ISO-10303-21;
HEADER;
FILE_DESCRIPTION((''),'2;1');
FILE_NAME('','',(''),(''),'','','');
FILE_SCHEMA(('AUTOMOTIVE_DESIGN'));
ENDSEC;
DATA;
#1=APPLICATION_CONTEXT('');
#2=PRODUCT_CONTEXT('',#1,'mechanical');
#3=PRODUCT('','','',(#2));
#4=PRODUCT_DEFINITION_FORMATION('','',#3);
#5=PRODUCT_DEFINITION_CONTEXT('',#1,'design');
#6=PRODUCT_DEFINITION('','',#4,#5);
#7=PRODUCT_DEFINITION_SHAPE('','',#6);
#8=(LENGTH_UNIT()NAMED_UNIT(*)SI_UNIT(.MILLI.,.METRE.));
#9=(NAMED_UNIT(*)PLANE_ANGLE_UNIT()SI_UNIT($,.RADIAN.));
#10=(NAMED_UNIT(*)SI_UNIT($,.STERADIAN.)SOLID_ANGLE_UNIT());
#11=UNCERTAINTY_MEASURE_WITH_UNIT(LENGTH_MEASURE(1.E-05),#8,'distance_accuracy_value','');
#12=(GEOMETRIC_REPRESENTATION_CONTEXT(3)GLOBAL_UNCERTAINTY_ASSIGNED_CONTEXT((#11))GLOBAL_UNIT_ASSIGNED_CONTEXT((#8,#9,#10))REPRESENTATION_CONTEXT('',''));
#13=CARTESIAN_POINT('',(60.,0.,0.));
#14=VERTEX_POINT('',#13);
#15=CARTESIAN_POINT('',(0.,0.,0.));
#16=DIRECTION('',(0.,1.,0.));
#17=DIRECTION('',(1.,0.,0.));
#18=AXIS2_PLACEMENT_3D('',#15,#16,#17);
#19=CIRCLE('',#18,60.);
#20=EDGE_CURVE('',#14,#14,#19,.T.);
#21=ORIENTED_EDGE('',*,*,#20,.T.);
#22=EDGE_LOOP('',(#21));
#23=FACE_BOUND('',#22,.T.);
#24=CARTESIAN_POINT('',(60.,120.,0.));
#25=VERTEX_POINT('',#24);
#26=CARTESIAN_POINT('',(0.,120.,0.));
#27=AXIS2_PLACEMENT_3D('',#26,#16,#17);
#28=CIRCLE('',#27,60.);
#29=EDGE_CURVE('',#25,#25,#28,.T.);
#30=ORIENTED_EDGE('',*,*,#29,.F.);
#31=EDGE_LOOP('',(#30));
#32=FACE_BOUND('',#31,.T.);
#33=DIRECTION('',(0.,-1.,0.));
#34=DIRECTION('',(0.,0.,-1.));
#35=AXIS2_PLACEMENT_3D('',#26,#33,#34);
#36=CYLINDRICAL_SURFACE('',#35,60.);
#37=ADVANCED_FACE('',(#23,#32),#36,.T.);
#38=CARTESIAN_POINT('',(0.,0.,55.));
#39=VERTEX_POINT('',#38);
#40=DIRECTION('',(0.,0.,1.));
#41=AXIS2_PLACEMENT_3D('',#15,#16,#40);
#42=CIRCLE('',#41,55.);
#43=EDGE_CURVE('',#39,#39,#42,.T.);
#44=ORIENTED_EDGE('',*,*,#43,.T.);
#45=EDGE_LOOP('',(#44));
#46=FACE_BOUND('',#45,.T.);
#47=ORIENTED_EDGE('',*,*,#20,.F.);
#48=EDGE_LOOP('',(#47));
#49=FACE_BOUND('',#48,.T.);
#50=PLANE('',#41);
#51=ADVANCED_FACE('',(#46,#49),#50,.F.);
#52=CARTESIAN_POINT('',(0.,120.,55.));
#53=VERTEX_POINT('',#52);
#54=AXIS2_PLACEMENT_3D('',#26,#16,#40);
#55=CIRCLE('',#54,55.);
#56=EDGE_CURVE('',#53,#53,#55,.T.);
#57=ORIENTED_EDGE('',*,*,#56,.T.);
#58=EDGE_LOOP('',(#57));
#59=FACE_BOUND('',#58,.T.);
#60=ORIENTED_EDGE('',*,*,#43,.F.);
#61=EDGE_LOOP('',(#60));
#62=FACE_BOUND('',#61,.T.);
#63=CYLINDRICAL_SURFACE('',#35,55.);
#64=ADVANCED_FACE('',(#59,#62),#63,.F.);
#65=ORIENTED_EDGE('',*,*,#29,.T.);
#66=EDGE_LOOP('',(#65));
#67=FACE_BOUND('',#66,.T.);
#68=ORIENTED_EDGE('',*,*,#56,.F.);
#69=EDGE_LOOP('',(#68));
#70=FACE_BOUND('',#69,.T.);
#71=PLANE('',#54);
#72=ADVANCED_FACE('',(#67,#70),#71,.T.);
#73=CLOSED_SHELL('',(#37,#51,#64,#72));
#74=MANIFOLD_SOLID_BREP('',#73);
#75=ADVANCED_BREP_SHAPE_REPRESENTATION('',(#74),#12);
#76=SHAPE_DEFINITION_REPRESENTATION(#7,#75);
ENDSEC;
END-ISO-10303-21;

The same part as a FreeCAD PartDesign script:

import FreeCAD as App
import Part
import Sketcher

V = App.Vector
Q = App.Units.Quantity

doc = App.newDocument("Part")
body = doc.addObject("PartDesign::Body", "Body")

sketch1 = doc.addObject("Sketcher::SketchObject", "Sketch")
body.addObject(sketch1)
sketch1.AttachmentSupport = (doc.XZ_Plane, [""])
sketch1.MapMode = "FlatFace"
sketch1.addGeometry([
    Part.Circle(V(0, 0, 0), V(0, 0, 1), 60),
    Part.Circle(V(0, 0, 0), V(0, 0, 1), 55),
], False)
sketch1.addConstraint([
    Sketcher.Constraint("Coincident", 0, 3, -1, 1),
    Sketcher.Constraint("Coincident", 1, 3, -1, 1),
    Sketcher.Constraint("Diameter", 0, Q("120 mm")),
    Sketcher.Constraint("Diameter", 1, Q("110 mm")),
])
pad1 = doc.addObject("PartDesign::Pad", "Pad")
body.addObject(pad1)
pad1.Profile = sketch1
pad1.Length = 120
pad1.Reversed = True

doc.recompute()
